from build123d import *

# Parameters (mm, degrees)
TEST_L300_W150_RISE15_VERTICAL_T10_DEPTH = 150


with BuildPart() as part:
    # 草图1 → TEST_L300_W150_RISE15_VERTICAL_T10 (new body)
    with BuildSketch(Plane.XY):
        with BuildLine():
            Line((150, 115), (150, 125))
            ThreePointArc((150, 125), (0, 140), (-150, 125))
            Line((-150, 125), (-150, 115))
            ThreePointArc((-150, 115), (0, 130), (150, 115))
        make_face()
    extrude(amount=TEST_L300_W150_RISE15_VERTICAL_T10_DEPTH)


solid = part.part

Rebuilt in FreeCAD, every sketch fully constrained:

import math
import FreeCAD as App
import Part
import Sketcher
Q = App.Units.Quantity

doc = App.newDocument("Part")
params = doc.addObject("Spreadsheet::Sheet", "Params")
for row, (alias, value) in enumerate([
    ("sketch1_radius", "757.5 mm"),
    ("sketch1_height", "10 mm"),
    ("pad1_length", "150 mm"),
], start=1):
    params.set(f"A{row}", alias)
    params.set(f"B{row}", "=" + value)
    params.setAlias(f"B{row}", alias)

body = doc.addObject("PartDesign::Body", "Body")

# Sketch on XY plane
sketch1 = body.newObject("Sketcher::SketchObject", "Sketch")
sketch1.AttachmentSupport = (doc.getObject("XY_Plane"), [""])
sketch1.MapMode = "FlatFace"
sketch1.addGeometry([
    Part.LineSegment(App.Vector(150, 115, 0), App.Vector(150, 125, 0)),
    Part.ArcOfCircle(Part.Circle(App.Vector(0, -617.5, 0), App.Vector(0, 0, 1), 757.5), math.radians(78.578814), math.radians(101.421186)),
    Part.LineSegment(App.Vector(-150, 125, 0), App.Vector(-150, 115, 0)),
    Part.ArcOfCircle(Part.Circle(App.Vector(0, -627.5, 0), App.Vector(0, 0, 1), 757.5), math.radians(78.578814), math.radians(101.421186)),
], False)
sketch1.addConstraint([
    Sketcher.Constraint("Coincident", 0, 2, 1, 1),
    Sketcher.Constraint("Coincident", 1, 2, 2, 1),
    Sketcher.Constraint("Coincident", 2, 2, 3, 2),
    Sketcher.Constraint("Coincident", 3, 1, 0, 1),
    Sketcher.Constraint("Vertical", 0),
    Sketcher.Constraint("Vertical", 2),
    Sketcher.Constraint("Equal", 1, 3),
    Sketcher.Constraint("PointOnObject", 1, 3, -2),
    Sketcher.Constraint("PointOnObject", 3, 3, -2),
    Sketcher.Constraint("Radius", 1, Q("757.5 mm")),
    Sketcher.Constraint("DistanceY", 0, 1, 0, 2, Q("10 mm")),
    Sketcher.Constraint("DistanceX", -1, 1, 0, 2, Q("150 mm")),
    Sketcher.Constraint("DistanceY", -1, 1, 0, 2, Q("125 mm")),
    Sketcher.Constraint("DistanceX", 2, 2, -1, 1, Q("150 mm")),
])
sketch1.setExpression("Constraints[9]", "Params.sketch1_radius")
sketch1.setExpression("Constraints[10]", "Params.sketch1_height")
pad1 = body.newObject("PartDesign::Pad", "Pad")
pad1.Profile = sketch1
pad1.setExpression("Length", "Params.pad1_length")

doc.recompute()
